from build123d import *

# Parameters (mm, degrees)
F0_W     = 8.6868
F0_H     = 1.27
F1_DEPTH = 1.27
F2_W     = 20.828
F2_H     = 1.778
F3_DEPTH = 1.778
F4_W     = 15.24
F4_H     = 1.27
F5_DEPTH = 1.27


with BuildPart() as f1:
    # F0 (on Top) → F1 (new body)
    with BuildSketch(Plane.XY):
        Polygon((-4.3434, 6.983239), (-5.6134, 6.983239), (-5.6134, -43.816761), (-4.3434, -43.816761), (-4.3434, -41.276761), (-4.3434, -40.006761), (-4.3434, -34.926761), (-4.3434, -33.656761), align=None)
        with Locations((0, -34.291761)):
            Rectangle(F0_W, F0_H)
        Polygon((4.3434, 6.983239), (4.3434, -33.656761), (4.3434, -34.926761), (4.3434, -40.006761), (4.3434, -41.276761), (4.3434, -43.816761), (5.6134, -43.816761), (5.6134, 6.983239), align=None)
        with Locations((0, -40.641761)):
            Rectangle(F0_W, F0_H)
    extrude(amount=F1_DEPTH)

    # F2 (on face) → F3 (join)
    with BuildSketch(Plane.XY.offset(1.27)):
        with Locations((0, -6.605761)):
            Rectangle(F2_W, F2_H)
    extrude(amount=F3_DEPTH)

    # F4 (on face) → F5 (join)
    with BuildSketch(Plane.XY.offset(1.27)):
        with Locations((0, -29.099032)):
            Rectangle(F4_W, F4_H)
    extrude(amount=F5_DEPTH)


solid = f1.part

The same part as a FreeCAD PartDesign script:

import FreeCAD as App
import Part
import Sketcher
Q = App.Units.Quantity


def add_polygon(sketch, points):
    """Adds a closed chain of lines whose ends are joined by coincident constraints."""
    first, n = sketch.GeometryCount, len(points)
    for a, b in zip(points, points[1:] + points[:1]):
        sketch.addGeometry(Part.LineSegment(App.Vector(*a, 0), App.Vector(*b, 0)), False)
    for i in range(n):
        sketch.addConstraint(Sketcher.Constraint("Coincident", first + i, 2, first + (i + 1) % n, 1))

doc = App.newDocument("Part")
body = doc.addObject("PartDesign::Body", "Body")

sketch1 = body.newObject("Sketcher::SketchObject", "Sketch")
sketch1.AttachmentSupport = (doc.getObject("XY_Plane"), [""])
sketch1.MapMode = "FlatFace"
add_polygon(sketch1, [(-4.3, 7), (-5.6, 7), (-5.6, -43.8), (-4.3, -43.8), (-4.3, -41.3), (4.3, -41.3), (4.3, -43.8), (5.6, -43.8), (5.6, 7), (4.3, 7), (4.3, -33.7), (-4.3, -33.7)])
add_polygon(sketch1, [(-4.3, -40), (-4.3, -34.9), (4.3, -34.9), (4.3, -40)])
sketch1.addConstraint([
    Sketcher.Constraint("Horizontal", 0),
    Sketcher.Constraint("Vertical", 1),
    Sketcher.Constraint("Horizontal", 2),
    Sketcher.Constraint("Vertical", 3),
    Sketcher.Constraint("Horizontal", 4),
    Sketcher.Constraint("Vertical", 5),
    Sketcher.Constraint("Horizontal", 6),
    Sketcher.Constraint("Vertical", 7),
    Sketcher.Constraint("Horizontal", 8),
    Sketcher.Constraint("Vertical", 9),
    Sketcher.Constraint("Horizontal", 10),
    Sketcher.Constraint("Vertical", 11),
    Sketcher.Constraint("Vertical", 12),
    Sketcher.Constraint("Horizontal", 13),
    Sketcher.Constraint("Vertical", 14),
    Sketcher.Constraint("Horizontal", 15),
    Sketcher.Constraint("Symmetric", 2, 2, 5, 2, -2),
    Sketcher.Constraint("Symmetric", 0, 2, 7, 2, -2),
    Sketcher.Constraint("Vertical", 5, 2, 8, 2),
    Sketcher.Constraint("Vertical", 3, 2, 10, 2),
    Sketcher.Constraint("Vertical", 11, 2, 12, 2),
    Sketcher.Constraint("Vertical", 9, 2, 13, 2),
    Sketcher.Constraint("DistanceY", 1, 2, 1, 1, Q("2 in")),
    Sketcher.Constraint("DistanceY", 3, 1, 3, 2, Q("0.1 in")),
    Sketcher.Constraint("DistanceY", 9, 2, 9, 1, Q("1.6 in")),
    Sketcher.Constraint("DistanceY", 12, 1, 12, 2, Q("0.2 in")),
    Sketcher.Constraint("DistanceX", 0, 2, 0, 1, Q("0.05 in")),
    Sketcher.Constraint("DistanceX", 4, 1, 4, 2, Q("0.342 in")),
    Sketcher.Constraint("DistanceY", 12, 2, 10, 2, Q("0.05 in")),
    Sketcher.Constraint("DistanceY", -1, 1, 0, 2, Q("6.983239 mm")),
])
pad1 = body.newObject("PartDesign::Pad", "Pad")
pad1.Profile = sketch1
pad1.Length = Q("0.05 in")

sketch2 = body.newObject("Sketcher::SketchObject", "Sketch001")
sketch2.AttachmentSupport = (doc.getObject("XY_Plane"), [""])
sketch2.MapMode = "FlatFace"
sketch2.AttachmentOffset = App.Placement(App.Vector(0, 0, 0.05 * 25.4), App.Rotation())
add_polygon(sketch2, [(-10.4, -5.7), (-10.4, -7.5), (10.4, -7.5), (10.4, -5.7)])
sketch2.addConstraint([
    Sketcher.Constraint("Vertical", 0),
    Sketcher.Constraint("Horizontal", 1),
    Sketcher.Constraint("Vertical", 2),
    Sketcher.Constraint("Horizontal", 3),
    Sketcher.Constraint("DistanceX", 1, 1, 1, 2, Q("0.82 in")),
    Sketcher.Constraint("DistanceY", 0, 2, 0, 1, Q("0.07 in")),
    Sketcher.Constraint("DistanceX", 0, 2, -1, 1, Q("0.41 in")),
    Sketcher.Constraint("DistanceY", 0, 2, -1, 1, Q("7.494761 mm")),
])
pad2 = body.newObject("PartDesign::Pad", "Pad001")
pad2.Profile = sketch2
pad2.Length = Q("0.07 in")

sketch3 = body.newObject("Sketcher::SketchObject", "Sketch002")
sketch3.AttachmentSupport = (doc.getObject("XY_Plane"), [""])
sketch3.MapMode = "FlatFace"
sketch3.AttachmentOffset = App.Placement(App.Vector(0, 0, 0.05 * 25.4), App.Rotation())
add_polygon(sketch3, [(-7.6, -28.5), (-7.6, -29.7), (7.6, -29.7), (7.6, -28.5)])
sketch3.addConstraint([
    Sketcher.Constraint("Vertical", 0),
    Sketcher.Constraint("Horizontal", 1),
    Sketcher.Constraint("Vertical", 2),
    Sketcher.Constraint("Horizontal", 3),
    Sketcher.Constraint("DistanceX", 1, 1, 1, 2, Q("0.6 in")),
    Sketcher.Constraint("DistanceY", 0, 2, 0, 1, Q("0.05 in")),
    Sketcher.Constraint("DistanceX", 0, 2, -1, 1, Q("0.3 in")),
    Sketcher.Constraint("DistanceY", 0, 2, -1, 1, Q("29.734032 mm")),
])
pad3 = body.newObject("PartDesign::Pad", "Pad002")
pad3.Profile = sketch3
pad3.Length = Q("0.05 in")

doc.recompute()
